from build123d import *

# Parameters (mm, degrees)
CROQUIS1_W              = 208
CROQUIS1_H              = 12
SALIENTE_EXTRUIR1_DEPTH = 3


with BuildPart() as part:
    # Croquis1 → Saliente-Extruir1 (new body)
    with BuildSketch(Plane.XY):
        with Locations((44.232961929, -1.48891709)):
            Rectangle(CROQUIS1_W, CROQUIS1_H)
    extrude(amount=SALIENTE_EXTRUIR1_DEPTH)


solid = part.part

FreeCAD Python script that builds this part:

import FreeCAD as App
import Part
import Sketcher

doc = App.newDocument("Part")
body = doc.addObject("PartDesign::Body", "Body")

# Sketch on XY plane
sketch1 = body.newObject("Sketcher::SketchObject", "Sketch")
sketch1.AttachmentSupport = (doc.getObject("XY_Plane"), [""])
sketch1.MapMode = "FlatFace"
sketch1.addGeometry([
    Part.LineSegment(App.Vector(-60, 5, 0), App.Vector(-60, -7, 0)),
    Part.LineSegment(App.Vector(-60, -7, 0), App.Vector(148, -7, 0)),
    Part.LineSegment(App.Vector(148, -7, 0), App.Vector(148, 5, 0)),
    Part.LineSegment(App.Vector(148, 5, 0), App.Vector(-60, 5, 0)),
], False)
sketch1.addConstraint([
    Sketcher.Constraint("Coincident", 0, 2, 1, 1),
    Sketcher.Constraint("Coincident", 1, 2, 2, 1),
    Sketcher.Constraint("Coincident", 2, 2, 3, 1),
    Sketcher.Constraint("Coincident", 3, 2, 0, 1),
    Sketcher.Constraint("Vertical", 0),
    Sketcher.Constraint("Horizontal", 1),
    Sketcher.Constraint("Vertical", 2),
    Sketcher.Constraint("Horizontal", 3),
    Sketcher.Constraint("DistanceX", 1, 1, 1, 2, 208.0),
    Sketcher.Constraint("DistanceY", 0, 2, 0, 1, 12.0),
    Sketcher.Constraint("DistanceX", 0, 2, -1, 1, 59.767038),
    Sketcher.Constraint("DistanceY", 0, 2, -1, 1, 7.488917),
])
pad1 = body.newObject("PartDesign::Pad", "Pad")
pad1.Profile = sketch1
pad1.Length = 3

doc.recompute()
